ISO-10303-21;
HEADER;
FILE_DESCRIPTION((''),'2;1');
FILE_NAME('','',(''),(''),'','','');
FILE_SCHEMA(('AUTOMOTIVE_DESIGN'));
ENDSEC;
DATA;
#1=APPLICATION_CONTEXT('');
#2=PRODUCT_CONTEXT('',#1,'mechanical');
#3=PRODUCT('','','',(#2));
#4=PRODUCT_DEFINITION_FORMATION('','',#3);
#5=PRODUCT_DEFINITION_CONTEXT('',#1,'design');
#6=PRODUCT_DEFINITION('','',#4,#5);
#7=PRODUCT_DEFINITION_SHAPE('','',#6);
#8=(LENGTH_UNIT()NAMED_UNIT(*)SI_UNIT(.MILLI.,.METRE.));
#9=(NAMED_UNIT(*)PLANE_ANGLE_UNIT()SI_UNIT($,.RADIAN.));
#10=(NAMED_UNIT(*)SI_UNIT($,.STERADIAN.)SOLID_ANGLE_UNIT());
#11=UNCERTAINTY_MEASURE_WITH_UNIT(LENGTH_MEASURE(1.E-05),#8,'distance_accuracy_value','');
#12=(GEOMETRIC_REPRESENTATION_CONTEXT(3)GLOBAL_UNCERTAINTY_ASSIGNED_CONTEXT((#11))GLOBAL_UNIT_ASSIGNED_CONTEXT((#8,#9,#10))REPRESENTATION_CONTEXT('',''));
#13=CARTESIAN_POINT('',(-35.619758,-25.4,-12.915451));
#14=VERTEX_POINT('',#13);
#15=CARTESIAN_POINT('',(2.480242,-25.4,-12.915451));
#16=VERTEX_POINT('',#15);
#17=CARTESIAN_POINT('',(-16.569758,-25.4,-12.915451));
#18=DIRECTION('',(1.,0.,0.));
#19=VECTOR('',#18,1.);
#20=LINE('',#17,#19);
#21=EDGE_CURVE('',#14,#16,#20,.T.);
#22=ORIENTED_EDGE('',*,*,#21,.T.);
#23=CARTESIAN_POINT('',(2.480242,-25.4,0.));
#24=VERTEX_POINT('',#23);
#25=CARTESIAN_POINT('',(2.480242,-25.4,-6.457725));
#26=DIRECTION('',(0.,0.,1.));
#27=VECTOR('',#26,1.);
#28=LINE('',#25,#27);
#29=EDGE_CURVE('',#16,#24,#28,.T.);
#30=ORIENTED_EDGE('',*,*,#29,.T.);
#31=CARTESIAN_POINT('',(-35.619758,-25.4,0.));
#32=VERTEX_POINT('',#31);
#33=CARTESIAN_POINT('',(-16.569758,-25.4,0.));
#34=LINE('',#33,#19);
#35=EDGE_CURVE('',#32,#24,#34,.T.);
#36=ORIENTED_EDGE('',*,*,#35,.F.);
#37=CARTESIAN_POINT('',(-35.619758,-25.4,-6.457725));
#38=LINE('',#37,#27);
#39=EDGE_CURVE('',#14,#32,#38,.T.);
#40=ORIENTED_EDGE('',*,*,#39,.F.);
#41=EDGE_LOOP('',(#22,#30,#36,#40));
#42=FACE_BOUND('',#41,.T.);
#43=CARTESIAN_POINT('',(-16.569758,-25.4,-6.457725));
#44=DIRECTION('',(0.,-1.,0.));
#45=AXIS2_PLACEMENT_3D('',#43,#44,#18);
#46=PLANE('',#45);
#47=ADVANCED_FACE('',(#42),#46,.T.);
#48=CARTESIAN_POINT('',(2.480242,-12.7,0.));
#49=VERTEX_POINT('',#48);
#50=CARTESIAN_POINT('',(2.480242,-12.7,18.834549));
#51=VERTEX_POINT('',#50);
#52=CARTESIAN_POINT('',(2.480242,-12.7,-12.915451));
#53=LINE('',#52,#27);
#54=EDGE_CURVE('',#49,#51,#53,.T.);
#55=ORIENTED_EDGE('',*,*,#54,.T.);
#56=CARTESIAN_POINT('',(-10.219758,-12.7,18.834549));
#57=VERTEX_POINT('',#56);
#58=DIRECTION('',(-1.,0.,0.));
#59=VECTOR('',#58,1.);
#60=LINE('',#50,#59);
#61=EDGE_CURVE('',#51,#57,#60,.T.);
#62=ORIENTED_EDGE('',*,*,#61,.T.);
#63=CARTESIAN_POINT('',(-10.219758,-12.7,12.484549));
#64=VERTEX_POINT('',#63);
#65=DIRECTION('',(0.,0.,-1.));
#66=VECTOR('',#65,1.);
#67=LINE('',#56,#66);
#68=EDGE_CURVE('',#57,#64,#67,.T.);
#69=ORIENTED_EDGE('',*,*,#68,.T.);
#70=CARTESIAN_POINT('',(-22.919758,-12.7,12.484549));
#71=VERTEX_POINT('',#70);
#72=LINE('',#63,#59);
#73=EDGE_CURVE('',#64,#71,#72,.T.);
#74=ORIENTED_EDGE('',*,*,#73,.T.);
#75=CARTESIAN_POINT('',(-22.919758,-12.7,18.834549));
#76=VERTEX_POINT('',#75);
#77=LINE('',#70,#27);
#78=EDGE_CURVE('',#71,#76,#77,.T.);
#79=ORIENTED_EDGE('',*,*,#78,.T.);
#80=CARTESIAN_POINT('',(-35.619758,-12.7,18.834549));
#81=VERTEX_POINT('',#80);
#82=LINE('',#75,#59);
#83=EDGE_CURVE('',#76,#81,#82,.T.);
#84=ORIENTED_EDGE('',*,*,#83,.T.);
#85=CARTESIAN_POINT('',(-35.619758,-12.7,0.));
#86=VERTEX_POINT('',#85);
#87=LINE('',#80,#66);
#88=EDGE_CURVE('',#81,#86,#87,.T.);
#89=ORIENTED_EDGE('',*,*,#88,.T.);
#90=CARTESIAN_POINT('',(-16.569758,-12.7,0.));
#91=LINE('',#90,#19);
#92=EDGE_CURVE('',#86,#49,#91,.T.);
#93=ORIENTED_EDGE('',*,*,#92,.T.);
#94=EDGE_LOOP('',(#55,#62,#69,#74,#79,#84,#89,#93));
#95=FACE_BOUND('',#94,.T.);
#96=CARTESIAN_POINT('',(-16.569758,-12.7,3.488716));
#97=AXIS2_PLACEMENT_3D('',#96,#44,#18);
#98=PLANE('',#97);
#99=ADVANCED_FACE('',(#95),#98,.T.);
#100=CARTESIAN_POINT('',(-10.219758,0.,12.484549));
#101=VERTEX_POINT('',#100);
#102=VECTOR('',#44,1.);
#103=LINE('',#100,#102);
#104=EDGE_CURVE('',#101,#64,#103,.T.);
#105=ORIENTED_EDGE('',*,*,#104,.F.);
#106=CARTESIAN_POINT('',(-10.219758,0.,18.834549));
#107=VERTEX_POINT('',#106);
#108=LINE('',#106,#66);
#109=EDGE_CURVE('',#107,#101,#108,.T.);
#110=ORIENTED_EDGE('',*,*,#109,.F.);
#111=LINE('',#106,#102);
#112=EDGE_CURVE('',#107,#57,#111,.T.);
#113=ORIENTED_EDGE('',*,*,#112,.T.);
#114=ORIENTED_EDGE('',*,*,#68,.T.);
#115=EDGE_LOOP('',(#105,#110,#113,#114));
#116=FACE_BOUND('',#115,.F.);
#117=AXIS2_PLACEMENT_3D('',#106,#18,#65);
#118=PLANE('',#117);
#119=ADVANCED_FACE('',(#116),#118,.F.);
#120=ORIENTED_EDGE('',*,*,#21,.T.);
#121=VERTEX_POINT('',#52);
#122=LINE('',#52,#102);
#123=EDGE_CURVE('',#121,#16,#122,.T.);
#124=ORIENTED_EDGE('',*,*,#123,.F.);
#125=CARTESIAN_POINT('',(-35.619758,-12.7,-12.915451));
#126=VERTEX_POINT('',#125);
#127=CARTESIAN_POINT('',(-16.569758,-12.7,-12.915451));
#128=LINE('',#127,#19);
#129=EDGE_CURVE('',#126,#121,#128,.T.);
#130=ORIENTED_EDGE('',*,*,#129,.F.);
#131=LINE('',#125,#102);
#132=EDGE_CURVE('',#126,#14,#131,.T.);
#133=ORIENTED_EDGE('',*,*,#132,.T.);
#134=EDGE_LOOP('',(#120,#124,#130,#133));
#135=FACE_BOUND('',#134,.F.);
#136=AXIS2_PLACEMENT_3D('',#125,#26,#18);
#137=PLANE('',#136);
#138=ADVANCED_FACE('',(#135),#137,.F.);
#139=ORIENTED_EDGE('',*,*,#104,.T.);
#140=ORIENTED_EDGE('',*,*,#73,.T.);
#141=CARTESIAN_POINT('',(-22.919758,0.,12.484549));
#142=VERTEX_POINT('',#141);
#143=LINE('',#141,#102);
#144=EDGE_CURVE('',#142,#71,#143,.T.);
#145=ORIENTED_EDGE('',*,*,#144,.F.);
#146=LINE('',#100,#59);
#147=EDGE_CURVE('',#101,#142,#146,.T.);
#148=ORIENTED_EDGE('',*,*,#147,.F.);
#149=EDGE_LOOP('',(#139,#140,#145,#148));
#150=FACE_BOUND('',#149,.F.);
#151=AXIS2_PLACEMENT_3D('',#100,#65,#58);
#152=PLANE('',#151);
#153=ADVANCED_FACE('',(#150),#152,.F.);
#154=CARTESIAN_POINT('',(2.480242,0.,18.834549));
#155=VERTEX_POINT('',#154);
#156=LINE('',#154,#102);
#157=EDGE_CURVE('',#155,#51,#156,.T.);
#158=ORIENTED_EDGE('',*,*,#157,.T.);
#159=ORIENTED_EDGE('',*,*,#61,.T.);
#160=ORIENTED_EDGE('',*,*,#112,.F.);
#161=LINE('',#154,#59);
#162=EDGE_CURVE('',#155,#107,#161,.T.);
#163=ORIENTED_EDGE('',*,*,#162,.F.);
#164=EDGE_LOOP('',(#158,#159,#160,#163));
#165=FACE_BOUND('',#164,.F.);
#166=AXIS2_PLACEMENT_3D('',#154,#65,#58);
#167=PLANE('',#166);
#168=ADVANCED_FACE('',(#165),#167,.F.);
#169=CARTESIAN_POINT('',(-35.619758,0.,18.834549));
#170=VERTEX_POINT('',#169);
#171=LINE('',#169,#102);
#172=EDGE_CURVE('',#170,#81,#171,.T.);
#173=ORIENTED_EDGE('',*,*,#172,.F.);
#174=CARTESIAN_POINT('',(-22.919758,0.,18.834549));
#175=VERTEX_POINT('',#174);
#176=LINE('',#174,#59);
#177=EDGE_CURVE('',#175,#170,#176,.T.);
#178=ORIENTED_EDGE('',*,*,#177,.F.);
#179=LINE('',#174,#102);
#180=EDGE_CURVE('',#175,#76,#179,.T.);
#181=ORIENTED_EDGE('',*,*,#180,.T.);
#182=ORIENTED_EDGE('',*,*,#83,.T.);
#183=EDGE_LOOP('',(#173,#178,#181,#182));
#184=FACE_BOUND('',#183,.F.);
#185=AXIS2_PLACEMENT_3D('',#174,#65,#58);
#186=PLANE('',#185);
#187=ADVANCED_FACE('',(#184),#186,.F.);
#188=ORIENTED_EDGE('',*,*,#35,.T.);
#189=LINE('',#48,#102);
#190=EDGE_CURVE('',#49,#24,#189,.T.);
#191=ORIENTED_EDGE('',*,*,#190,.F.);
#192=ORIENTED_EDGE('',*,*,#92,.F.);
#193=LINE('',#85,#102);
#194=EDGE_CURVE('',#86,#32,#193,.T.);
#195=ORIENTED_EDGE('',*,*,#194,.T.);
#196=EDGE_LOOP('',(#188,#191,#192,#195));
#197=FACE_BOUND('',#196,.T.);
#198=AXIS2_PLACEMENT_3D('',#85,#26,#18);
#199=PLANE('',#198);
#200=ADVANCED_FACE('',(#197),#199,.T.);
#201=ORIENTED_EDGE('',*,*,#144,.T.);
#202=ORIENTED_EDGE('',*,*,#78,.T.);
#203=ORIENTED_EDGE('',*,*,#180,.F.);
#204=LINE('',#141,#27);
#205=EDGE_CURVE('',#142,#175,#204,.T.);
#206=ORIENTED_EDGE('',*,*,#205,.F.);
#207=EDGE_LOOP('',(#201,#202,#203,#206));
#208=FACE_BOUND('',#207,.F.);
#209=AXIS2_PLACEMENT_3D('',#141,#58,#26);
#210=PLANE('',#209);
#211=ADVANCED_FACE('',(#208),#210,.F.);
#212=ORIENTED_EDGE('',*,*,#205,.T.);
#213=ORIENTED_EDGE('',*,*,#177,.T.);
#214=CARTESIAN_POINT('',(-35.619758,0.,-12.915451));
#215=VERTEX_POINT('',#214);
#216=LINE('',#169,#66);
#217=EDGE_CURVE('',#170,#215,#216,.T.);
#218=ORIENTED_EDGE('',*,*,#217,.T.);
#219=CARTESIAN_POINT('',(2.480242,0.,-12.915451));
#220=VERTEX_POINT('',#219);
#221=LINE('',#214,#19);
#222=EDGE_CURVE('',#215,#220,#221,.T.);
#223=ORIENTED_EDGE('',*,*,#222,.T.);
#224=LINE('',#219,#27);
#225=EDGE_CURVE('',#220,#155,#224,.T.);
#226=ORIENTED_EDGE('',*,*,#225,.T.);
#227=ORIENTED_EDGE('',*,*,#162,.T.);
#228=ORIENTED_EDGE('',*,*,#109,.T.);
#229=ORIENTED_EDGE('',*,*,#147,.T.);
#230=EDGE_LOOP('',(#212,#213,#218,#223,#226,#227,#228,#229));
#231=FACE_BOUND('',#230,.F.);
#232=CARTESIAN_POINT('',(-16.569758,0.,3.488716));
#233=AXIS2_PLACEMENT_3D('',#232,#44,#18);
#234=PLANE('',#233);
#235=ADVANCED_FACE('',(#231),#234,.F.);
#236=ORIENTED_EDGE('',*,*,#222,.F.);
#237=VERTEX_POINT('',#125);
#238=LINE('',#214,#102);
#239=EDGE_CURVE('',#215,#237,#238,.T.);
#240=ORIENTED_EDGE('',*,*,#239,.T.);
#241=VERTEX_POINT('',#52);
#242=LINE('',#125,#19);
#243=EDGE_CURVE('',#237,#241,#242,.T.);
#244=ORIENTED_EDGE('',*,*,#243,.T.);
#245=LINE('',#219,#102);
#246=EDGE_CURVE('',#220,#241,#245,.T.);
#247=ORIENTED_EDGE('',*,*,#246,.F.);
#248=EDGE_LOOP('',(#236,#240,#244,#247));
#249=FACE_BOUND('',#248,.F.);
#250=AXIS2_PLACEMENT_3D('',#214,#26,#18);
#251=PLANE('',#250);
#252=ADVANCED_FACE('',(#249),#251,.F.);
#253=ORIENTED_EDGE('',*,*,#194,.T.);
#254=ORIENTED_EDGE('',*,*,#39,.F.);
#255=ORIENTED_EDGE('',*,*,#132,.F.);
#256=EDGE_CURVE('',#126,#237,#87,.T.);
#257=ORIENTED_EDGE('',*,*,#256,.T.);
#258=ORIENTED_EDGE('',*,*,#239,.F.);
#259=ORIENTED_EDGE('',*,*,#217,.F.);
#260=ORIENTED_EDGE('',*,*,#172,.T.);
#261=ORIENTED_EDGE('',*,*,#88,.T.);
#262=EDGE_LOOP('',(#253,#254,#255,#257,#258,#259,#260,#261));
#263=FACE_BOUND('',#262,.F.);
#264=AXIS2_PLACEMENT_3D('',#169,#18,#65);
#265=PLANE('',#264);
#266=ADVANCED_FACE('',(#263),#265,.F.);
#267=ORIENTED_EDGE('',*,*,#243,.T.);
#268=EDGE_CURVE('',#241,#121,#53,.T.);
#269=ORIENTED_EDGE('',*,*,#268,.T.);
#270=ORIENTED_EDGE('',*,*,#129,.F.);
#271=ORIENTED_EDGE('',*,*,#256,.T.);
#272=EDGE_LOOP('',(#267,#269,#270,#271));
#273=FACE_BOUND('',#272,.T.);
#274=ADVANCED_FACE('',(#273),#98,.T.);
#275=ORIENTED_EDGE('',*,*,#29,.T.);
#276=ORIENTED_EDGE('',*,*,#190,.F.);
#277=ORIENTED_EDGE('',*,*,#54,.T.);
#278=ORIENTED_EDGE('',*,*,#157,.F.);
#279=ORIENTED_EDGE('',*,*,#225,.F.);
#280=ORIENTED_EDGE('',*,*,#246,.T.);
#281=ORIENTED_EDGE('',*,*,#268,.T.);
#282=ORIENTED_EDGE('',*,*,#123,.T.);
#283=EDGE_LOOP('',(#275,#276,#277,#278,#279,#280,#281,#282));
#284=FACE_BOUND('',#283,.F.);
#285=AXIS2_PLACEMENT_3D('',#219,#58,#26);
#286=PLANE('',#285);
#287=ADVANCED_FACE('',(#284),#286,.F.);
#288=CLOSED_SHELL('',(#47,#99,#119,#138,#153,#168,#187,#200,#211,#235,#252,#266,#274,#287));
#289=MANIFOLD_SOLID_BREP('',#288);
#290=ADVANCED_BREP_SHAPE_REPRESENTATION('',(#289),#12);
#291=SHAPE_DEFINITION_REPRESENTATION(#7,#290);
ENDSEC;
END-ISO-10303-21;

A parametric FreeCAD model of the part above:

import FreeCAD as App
import Part
import Sketcher
from FreeCAD import Vector
Q = App.Units.Quantity

doc = App.newDocument("Part")
body = doc.addObject("PartDesign::Body", "Body")

sketch1 = body.newObject("Sketcher::SketchObject", "Sketch")
sketch1.AttachmentSupport = (doc.getObject("XZ_Plane"), [""])
sketch1.MapMode = "FlatFace"
sketch1.addGeometry(Part.LineSegment(Vector(-22.919758, 18.834549, 0), Vector(-35.619758, 18.834549, 0)), False)
sketch1.addGeometry(Part.LineSegment(Vector(-35.619758, 18.834549, 0), Vector(-35.619758, -12.915451, 0)), False)
sketch1.addGeometry(Part.LineSegment(Vector(-35.619758, -12.915451, 0), Vector(2.480242, -12.915451, 0)), False)
sketch1.addGeometry(Part.LineSegment(Vector(2.480242, -12.915451, 0), Vector(2.480242, 18.834549, 0)), False)
sketch1.addGeometry(Part.LineSegment(Vector(2.480242, 18.834549, 0), Vector(-10.219758, 18.834549, 0)), False)
sketch1.addGeometry(Part.LineSegment(Vector(-10.219758, 18.834549, 0), Vector(-10.219758, 12.484549, 0)), False)
sketch1.addGeometry(Part.LineSegment(Vector(-10.219758, 12.484549, 0), Vector(-22.919758, 12.484549, 0)), False)
sketch1.addGeometry(Part.LineSegment(Vector(-22.919758, 12.484549, 0), Vector(-22.919758, 18.834549, 0)), False)
sketch1.addConstraint(Sketcher.Constraint("Coincident", 0, 2, 1, 1))
sketch1.addConstraint(Sketcher.Constraint("Coincident", 1, 2, 2, 1))
sketch1.addConstraint(Sketcher.Constraint("Coincident", 2, 2, 3, 1))
sketch1.addConstraint(Sketcher.Constraint("Coincident", 3, 2, 4, 1))
sketch1.addConstraint(Sketcher.Constraint("Coincident", 4, 2, 5, 1))
sketch1.addConstraint(Sketcher.Constraint("Coincident", 5, 2, 6, 1))
sketch1.addConstraint(Sketcher.Constraint("Coincident", 6, 2, 7, 1))
sketch1.addConstraint(Sketcher.Constraint("Coincident", 7, 2, 0, 1))
sketch1.addConstraint(Sketcher.Constraint("Horizontal", 0))
sketch1.addConstraint(Sketcher.Constraint("Vertical", 1))
sketch1.addConstraint(Sketcher.Constraint("Horizontal", 2))
sketch1.addConstraint(Sketcher.Constraint("Vertical", 3))
sketch1.addConstraint(Sketcher.Constraint("Horizontal", 4))
sketch1.addConstraint(Sketcher.Constraint("Vertical", 5))
sketch1.addConstraint(Sketcher.Constraint("Horizontal", 6))
sketch1.addConstraint(Sketcher.Constraint("Vertical", 7))
sketch1.addConstraint(Sketcher.Constraint("Horizontal", 0, 2, 3, 2))
sketch1.addConstraint(Sketcher.Constraint("Equal", 0, 4))
sketch1.addConstraint(Sketcher.Constraint("Equal", 4, 6))
sketch1.addConstraint(Sketcher.Constraint("DistanceX", 0, 2, 0, 1, Q("0.5 in")))
sketch1.addConstraint(Sketcher.Constraint("DistanceY", 2, 2, 5, 2, Q("1 in")))
sketch1.addConstraint(Sketcher.Constraint("DistanceY", 1, 2, 1, 1, Q("1.25 in")))
sketch1.addConstraint(Sketcher.Constraint("DistanceY", -1, 1, 0, 2, 18.834549))
sketch1.addConstraint(Sketcher.Constraint("DistanceX", 6, 2, -1, 1, 22.919758))
pad1 = body.newObject("PartDesign::Pad", "Pad")
pad1.Profile = sketch1
pad1.Length = Q("0.5 in")

sketch2 = body.newObject("Sketcher::SketchObject", "Sketch001")
sketch2.AttachmentSupport = (doc.getObject("XZ_Plane"), [""])
sketch2.MapMode = "FlatFace"
sketch2.AttachmentOffset = App.Placement(Vector(0, 0, 0.5 * 25.4), App.Rotation())
sketch2.addGeometry(Part.LineSegment(Vector(-35.619758, 0, 0), Vector(-35.619758, -12.915451, 0)), False)
sketch2.addGeometry(Part.LineSegment(Vector(-35.619758, -12.915451, 0), Vector(2.480242, -12.915451, 0)), False)
sketch2.addGeometry(Part.LineSegment(Vector(2.480242, -12.915451, 0), Vector(2.480242, 0, 0)), False)
sketch2.addGeometry(Part.LineSegment(Vector(2.480242, 0, 0), Vector(-35.619758, 0, 0)), False)
sketch2.addConstraint(Sketcher.Constraint("Coincident", 0, 2, 1, 1))
sketch2.addConstraint(Sketcher.Constraint("Coincident", 1, 2, 2, 1))
sketch2.addConstraint(Sketcher.Constraint("Coincident", 2, 2, 3, 1))
sketch2.addConstraint(Sketcher.Constraint("Coincident", 3, 2, 0, 1))
sketch2.addConstraint(Sketcher.Constraint("Vertical", 0))
sketch2.addConstraint(Sketcher.Constraint("Horizontal", 1))
sketch2.addConstraint(Sketcher.Constraint("Vertical", 2))
sketch2.addConstraint(Sketcher.Constraint("Horizontal", 3))
sketch2.addConstraint(Sketcher.Constraint("PointOnObject", 2, 2, -1))
sketch2.addConstraint(Sketcher.Constraint("DistanceX", 1, 1, 1, 2, Q("1.5 in")))
sketch2.addConstraint(Sketcher.Constraint("DistanceY", 0, 2, 0, 1, 12.915451))
sketch2.addConstraint(Sketcher.Constraint("DistanceX", 0, 2, -1, 1, 35.619758))
pad2 = body.newObject("PartDesign::Pad", "Pad001")
pad2.Profile = sketch2
pad2.Length = Q("0.5 in")

doc.recompute()
